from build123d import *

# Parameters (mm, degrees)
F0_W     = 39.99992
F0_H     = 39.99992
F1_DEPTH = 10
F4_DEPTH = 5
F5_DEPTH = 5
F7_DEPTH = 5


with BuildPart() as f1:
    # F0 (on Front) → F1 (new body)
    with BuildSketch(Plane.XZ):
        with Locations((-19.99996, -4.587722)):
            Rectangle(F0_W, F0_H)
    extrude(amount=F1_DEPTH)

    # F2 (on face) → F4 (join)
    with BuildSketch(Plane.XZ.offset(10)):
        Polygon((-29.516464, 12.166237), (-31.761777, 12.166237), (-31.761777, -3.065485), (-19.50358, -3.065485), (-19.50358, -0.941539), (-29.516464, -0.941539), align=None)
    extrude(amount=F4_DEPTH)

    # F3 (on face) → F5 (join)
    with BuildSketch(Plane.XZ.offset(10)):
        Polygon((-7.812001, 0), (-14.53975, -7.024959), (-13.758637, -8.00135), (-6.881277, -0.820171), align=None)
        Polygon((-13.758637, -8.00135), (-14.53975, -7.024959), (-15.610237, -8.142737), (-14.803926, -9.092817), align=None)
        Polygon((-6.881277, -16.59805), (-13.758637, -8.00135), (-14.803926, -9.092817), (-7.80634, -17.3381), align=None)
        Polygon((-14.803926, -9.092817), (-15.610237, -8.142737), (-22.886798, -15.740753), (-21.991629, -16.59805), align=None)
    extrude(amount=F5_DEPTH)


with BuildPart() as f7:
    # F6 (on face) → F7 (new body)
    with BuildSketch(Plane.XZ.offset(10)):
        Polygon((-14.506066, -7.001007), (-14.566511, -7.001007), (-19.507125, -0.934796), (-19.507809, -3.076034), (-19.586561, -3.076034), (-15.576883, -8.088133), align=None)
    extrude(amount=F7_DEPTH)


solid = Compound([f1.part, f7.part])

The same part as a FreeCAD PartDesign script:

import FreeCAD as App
import Part
import Sketcher
from FreeCAD import Vector

doc = App.newDocument("Part")
body = doc.addObject("PartDesign::Body", "Body")

sketch1 = body.newObject("Sketcher::SketchObject", "Sketch")
sketch1.AttachmentSupport = (doc.getObject("XZ_Plane"), [""])
sketch1.MapMode = "FlatFace"
sketch1.addGeometry(Part.LineSegment(Vector(-39.99992, 15.412238, 0), Vector(-39.99992, -24.587682, 0)), False)
sketch1.addGeometry(Part.LineSegment(Vector(-39.99992, -24.587682, 0), Vector(0, -24.587682, 0)), False)
sketch1.addGeometry(Part.LineSegment(Vector(0, -24.587682, 0), Vector(0, 15.412238, 0)), False)
sketch1.addGeometry(Part.LineSegment(Vector(0, 15.412238, 0), Vector(-39.99992, 15.412238, 0)), False)
sketch1.addConstraint(Sketcher.Constraint("Coincident", 0, 2, 1, 1))
sketch1.addConstraint(Sketcher.Constraint("Coincident", 1, 2, 2, 1))
sketch1.addConstraint(Sketcher.Constraint("Coincident", 2, 2, 3, 1))
sketch1.addConstraint(Sketcher.Constraint("Coincident", 3, 2, 0, 1))
sketch1.addConstraint(Sketcher.Constraint("Vertical", 0))
sketch1.addConstraint(Sketcher.Constraint("Horizontal", 1))
sketch1.addConstraint(Sketcher.Constraint("Vertical", 2))
sketch1.addConstraint(Sketcher.Constraint("Horizontal", 3))
sketch1.addConstraint(Sketcher.Constraint("PointOnObject", 1, 2, -2))
sketch1.addConstraint(Sketcher.Constraint("Equal", 3, 0))
sketch1.addConstraint(Sketcher.Constraint("DistanceX", 1, 1, 1, 2, 39.99992))
sketch1.addConstraint(Sketcher.Constraint("DistanceY", 0, 2, -1, 1, 24.587682))
pad1 = body.newObject("PartDesign::Pad", "Pad")
pad1.Profile = sketch1
pad1.Length = 10

sketch2 = body.newObject("Sketcher::SketchObject", "Sketch001")
sketch2.AttachmentSupport = (doc.getObject("XZ_Plane"), [""])
sketch2.MapMode = "FlatFace"
sketch2.AttachmentOffset = App.Placement(Vector(0, 0, 10), App.Rotation())
sketch2.addGeometry(Part.LineSegment(Vector(-29.516464, 12.166237, 0), Vector(-31.761777, 12.166237, 0)), False)
sketch2.addGeometry(Part.LineSegment(Vector(-31.761777, 12.166237, 0), Vector(-31.761777, -3.065485, 0)), False)
sketch2.addGeometry(Part.LineSegment(Vector(-31.761777, -3.065485, 0), Vector(-19.50358, -3.065485, 0)), False)
sketch2.addGeometry(Part.LineSegment(Vector(-19.50358, -3.065485, 0), Vector(-19.50358, -0.941539, 0)), False)
sketch2.addGeometry(Part.LineSegment(Vector(-19.50358, -0.941539, 0), Vector(-29.516464, -0.941539, 0)), False)
sketch2.addGeometry(Part.LineSegment(Vector(-29.516464, -0.941539, 0), Vector(-29.516464, 12.166237, 0)), False)
sketch2.addConstraint(Sketcher.Constraint("Coincident", 0, 2, 1, 1))
sketch2.addConstraint(Sketcher.Constraint("Coincident", 1, 2, 2, 1))
sketch2.addConstraint(Sketcher.Constraint("Coincident", 2, 2, 3, 1))
sketch2.addConstraint(Sketcher.Constraint("Coincident", 3, 2, 4, 1))
sketch2.addConstraint(Sketcher.Constraint("Coincident", 4, 2, 5, 1))
sketch2.addConstraint(Sketcher.Constraint("Coincident", 5, 2, 0, 1))
sketch2.addConstraint(Sketcher.Constraint("Horizontal", 0))
sketch2.addConstraint(Sketcher.Constraint("Vertical", 1))
sketch2.addConstraint(Sketcher.Constraint("Horizontal", 2))
sketch2.addConstraint(Sketcher.Constraint("Vertical", 3))
sketch2.addConstraint(Sketcher.Constraint("Horizontal", 4))
sketch2.addConstraint(Sketcher.Constraint("Vertical", 5))
sketch2.addConstraint(Sketcher.Constraint("DistanceX", 0, 2, 0, 1, 2.245313))
sketch2.addConstraint(Sketcher.Constraint("DistanceX", 2, 1, 2, 2, 12.258197))
sketch2.addConstraint(Sketcher.Constraint("DistanceY", 1, 2, 1, 1, 15.231722))
sketch2.addConstraint(Sketcher.Constraint("DistanceY", 3, 1, 3, 2, 2.123946))
sketch2.addConstraint(Sketcher.Constraint("DistanceX", 2, 2, -1, 1, 19.50358))
sketch2.addConstraint(Sketcher.Constraint("DistanceY", 3, 2, -1, 1, 0.941539))
pad2 = body.newObject("PartDesign::Pad", "Pad001")
pad2.Profile = sketch2
pad2.Length = 5

sketch3 = body.newObject("Sketcher::SketchObject", "Sketch002")
sketch3.AttachmentSupport = (doc.getObject("XZ_Plane"), [""])
sketch3.MapMode = "FlatFace"
sketch3.AttachmentOffset = App.Placement(Vector(0, 0, 10), App.Rotation())
sketch3.addGeometry(Part.LineSegment(Vector(-7.812001, 0, 0), Vector(-14.53975, -7.024959, 0)), False)
sketch3.addGeometry(Part.LineSegment(Vector(-14.53975, -7.024959, 0), Vector(-15.610237, -8.142737, 0)), False)
sketch3.addGeometry(Part.LineSegment(Vector(-15.610237, -8.142737, 0), Vector(-22.886798, -15.740753, 0)), False)
sketch3.addGeometry(Part.LineSegment(Vector(-22.886798, -15.740753, 0), Vector(-21.991629, -16.59805, 0)), False)
sketch3.addGeometry(Part.LineSegment(Vector(-21.991629, -16.59805, 0), Vector(-14.803926, -9.092817, 0)), False)
sketch3.addGeometry(Part.LineSegment(Vector(-14.803926, -9.092817, 0), Vector(-7.80634, -17.3381, 0)), False)
sketch3.addGeometry(Part.LineSegment(Vector(-7.80634, -17.3381, 0), Vector(-6.881277, -16.59805, 0)), False)
sketch3.addGeometry(Part.LineSegment(Vector(-6.881277, -16.59805, 0), Vector(-13.758637, -8.00135, 0)), False)
sketch3.addGeometry(Part.LineSegment(Vector(-13.758637, -8.00135, 0), Vector(-6.881277, -0.820171, 0)), False)
sketch3.addGeometry(Part.LineSegment(Vector(-6.881277, -0.820171, 0), Vector(-7.812001, 0, 0)), False)
sketch3.addConstraint(Sketcher.Constraint("Coincident", 0, 2, 1, 1))
sketch3.addConstraint(Sketcher.Constraint("Coincident", 1, 2, 2, 1))
sketch3.addConstraint(Sketcher.Constraint("Coincident", 2, 2, 3, 1))
sketch3.addConstraint(Sketcher.Constraint("Coincident", 3, 2, 4, 1))
sketch3.addConstraint(Sketcher.Constraint("Coincident", 4, 2, 5, 1))
sketch3.addConstraint(Sketcher.Constraint("Coincident", 5, 2, 6, 1))
sketch3.addConstraint(Sketcher.Constraint("Coincident", 6, 2, 7, 1))
sketch3.addConstraint(Sketcher.Constraint("Coincident", 7, 2, 8, 1))
sketch3.addConstraint(Sketcher.Constraint("Coincident", 8, 2, 9, 1))
sketch3.addConstraint(Sketcher.Constraint("Coincident", 9, 2, 0, 1))
sketch3.addConstraint(Sketcher.Constraint("PointOnObject", 9, 2, -1))
sketch3.addConstraint(Sketcher.Constraint("Parallel", 0, 1))
sketch3.addConstraint(Sketcher.Constraint("Parallel", 1, 2))
sketch3.addConstraint(Sketcher.Constraint("Perpendicular", 2, 3))
sketch3.addConstraint(Sketcher.Constraint("Perpendicular", 3, 4))
sketch3.addConstraint(Sketcher.Constraint("Perpendicular", 6, 7))
sketch3.addConstraint(Sketcher.Constraint("Parallel", 4, 8))
sketch3.addConstraint(Sketcher.Constraint("Horizontal", 3, 2, 6, 2))
sketch3.addConstraint(Sketcher.Constraint("Vertical", 6, 2, 8, 2))
sketch3.addConstraint(Sketcher.Constraint("DistanceX", 9, 2, -1, 1, 7.812001))
sketch3.addConstraint(Sketcher.Constraint("Distance", 1, 1.547698))
sketch3.addConstraint(Sketcher.Constraint("Distance", 4, 10.391901))
sketch3.addConstraint(Sketcher.Constraint("DistanceY", 5, 2, -1, 1, 17.3381))
sketch3.addConstraint(Sketcher.Constraint("DistanceX", 1, 2, 7, 2, 1.8516))
sketch3.addConstraint(Sketcher.Constraint("DistanceY", 6, 2, 7, 2, 8.5967))
sketch3.addConstraint(Sketcher.Constraint("Distance", 2, 10.52037))
sketch3.addConstraint(Sketcher.Constraint("Distance", 3, 1.23947))
sketch3.addConstraint(Sketcher.Constraint("Distance", 6, 1.184658))
sketch3.addConstraint(Sketcher.Constraint("Distance", 8, 9.943209))
sketch3.addConstraint(Sketcher.Constraint("DistanceX", 0, 2, -1, 1, 14.53975))
pad3 = body.newObject("PartDesign::Pad", "Pad002")
pad3.Profile = sketch3
pad3.Length = 5
body2 = doc.addObject("PartDesign::Body", "Body001")

sketch4 = body2.newObject("Sketcher::SketchObject", "Sketch003")
sketch4.AttachmentSupport = (doc.getObject("XZ_Plane001"), [""])
sketch4.MapMode = "FlatFace"
sketch4.AttachmentOffset = App.Placement(Vector(0, 0, 10), App.Rotation())
sketch4.addGeometry(Part.LineSegment(Vector(-14.506066, -7.001007, 0), Vector(-14.566511, -7.001007, 0)), False)
sketch4.addGeometry(Part.LineSegment(Vector(-14.566511, -7.001007, 0), Vector(-19.507125, -0.934796, 0)), False)
sketch4.addGeometry(Part.LineSegment(Vector(-19.507125, -0.934796, 0), Vector(-19.507809, -3.076034, 0)), False)
sketch4.addGeometry(Part.LineSegment(Vector(-19.507809, -3.076034, 0), Vector(-19.586561, -3.076034, 0)), False)
sketch4.addGeometry(Part.LineSegment(Vector(-19.586561, -3.076034, 0), Vector(-15.576883, -8.088133, 0)), False)
sketch4.addGeometry(Part.LineSegment(Vector(-15.576883, -8.088133, 0), Vector(-14.506066, -7.001007, 0)), False)
sketch4.addConstraint(Sketcher.Constraint("Coincident", 0, 2, 1, 1))
sketch4.addConstraint(Sketcher.Constraint("Coincident", 1, 2, 2, 1))
sketch4.addConstraint(Sketcher.Constraint("Coincident", 2, 2, 3, 1))
sketch4.addConstraint(Sketcher.Constraint("Coincident", 3, 2, 4, 1))
sketch4.addConstraint(Sketcher.Constraint("Coincident", 4, 2, 5, 1))
sketch4.addConstraint(Sketcher.Constraint("Coincident", 5, 2, 0, 1))
sketch4.addConstraint(Sketcher.Constraint("Horizontal", 0))
sketch4.addConstraint(Sketcher.Constraint("Horizontal", 3))
sketch4.addConstraint(Sketcher.Constraint("DistanceX", 3, 2, 3, 1, 0.078752))
sketch4.addConstraint(Sketcher.Constraint("DistanceX", 2, 2, 0, 2, 4.941298))
sketch4.addConstraint(Sketcher.Constraint("DistanceY", 4, 2, 2, 2, 5.012099))
sketch4.addConstraint(Sketcher.Constraint("Distance", 1, 7.823591))
sketch4.addConstraint(Sketcher.Constraint("Distance", 2, 2.141238))
sketch4.addConstraint(Sketcher.Constraint("Distance", 5, 1.52594))
sketch4.addConstraint(Sketcher.Constraint("DistanceX", 0, 2, 0, 1, 0.060445))
sketch4.addConstraint(Sketcher.Constraint("DistanceX", 0, 2, -1, 1, 14.566511))
sketch4.addConstraint(Sketcher.Constraint("DistanceY", 0, 2, 1, 2, 6.066211))
sketch4.addConstraint(Sketcher.Constraint("DistanceY", 0, 2, -1, 1, 7.001007))
pad4 = body2.newObject("PartDesign::Pad", "Pad003")
pad4.Profile = sketch4
pad4.Length = 5

doc.recompute()
